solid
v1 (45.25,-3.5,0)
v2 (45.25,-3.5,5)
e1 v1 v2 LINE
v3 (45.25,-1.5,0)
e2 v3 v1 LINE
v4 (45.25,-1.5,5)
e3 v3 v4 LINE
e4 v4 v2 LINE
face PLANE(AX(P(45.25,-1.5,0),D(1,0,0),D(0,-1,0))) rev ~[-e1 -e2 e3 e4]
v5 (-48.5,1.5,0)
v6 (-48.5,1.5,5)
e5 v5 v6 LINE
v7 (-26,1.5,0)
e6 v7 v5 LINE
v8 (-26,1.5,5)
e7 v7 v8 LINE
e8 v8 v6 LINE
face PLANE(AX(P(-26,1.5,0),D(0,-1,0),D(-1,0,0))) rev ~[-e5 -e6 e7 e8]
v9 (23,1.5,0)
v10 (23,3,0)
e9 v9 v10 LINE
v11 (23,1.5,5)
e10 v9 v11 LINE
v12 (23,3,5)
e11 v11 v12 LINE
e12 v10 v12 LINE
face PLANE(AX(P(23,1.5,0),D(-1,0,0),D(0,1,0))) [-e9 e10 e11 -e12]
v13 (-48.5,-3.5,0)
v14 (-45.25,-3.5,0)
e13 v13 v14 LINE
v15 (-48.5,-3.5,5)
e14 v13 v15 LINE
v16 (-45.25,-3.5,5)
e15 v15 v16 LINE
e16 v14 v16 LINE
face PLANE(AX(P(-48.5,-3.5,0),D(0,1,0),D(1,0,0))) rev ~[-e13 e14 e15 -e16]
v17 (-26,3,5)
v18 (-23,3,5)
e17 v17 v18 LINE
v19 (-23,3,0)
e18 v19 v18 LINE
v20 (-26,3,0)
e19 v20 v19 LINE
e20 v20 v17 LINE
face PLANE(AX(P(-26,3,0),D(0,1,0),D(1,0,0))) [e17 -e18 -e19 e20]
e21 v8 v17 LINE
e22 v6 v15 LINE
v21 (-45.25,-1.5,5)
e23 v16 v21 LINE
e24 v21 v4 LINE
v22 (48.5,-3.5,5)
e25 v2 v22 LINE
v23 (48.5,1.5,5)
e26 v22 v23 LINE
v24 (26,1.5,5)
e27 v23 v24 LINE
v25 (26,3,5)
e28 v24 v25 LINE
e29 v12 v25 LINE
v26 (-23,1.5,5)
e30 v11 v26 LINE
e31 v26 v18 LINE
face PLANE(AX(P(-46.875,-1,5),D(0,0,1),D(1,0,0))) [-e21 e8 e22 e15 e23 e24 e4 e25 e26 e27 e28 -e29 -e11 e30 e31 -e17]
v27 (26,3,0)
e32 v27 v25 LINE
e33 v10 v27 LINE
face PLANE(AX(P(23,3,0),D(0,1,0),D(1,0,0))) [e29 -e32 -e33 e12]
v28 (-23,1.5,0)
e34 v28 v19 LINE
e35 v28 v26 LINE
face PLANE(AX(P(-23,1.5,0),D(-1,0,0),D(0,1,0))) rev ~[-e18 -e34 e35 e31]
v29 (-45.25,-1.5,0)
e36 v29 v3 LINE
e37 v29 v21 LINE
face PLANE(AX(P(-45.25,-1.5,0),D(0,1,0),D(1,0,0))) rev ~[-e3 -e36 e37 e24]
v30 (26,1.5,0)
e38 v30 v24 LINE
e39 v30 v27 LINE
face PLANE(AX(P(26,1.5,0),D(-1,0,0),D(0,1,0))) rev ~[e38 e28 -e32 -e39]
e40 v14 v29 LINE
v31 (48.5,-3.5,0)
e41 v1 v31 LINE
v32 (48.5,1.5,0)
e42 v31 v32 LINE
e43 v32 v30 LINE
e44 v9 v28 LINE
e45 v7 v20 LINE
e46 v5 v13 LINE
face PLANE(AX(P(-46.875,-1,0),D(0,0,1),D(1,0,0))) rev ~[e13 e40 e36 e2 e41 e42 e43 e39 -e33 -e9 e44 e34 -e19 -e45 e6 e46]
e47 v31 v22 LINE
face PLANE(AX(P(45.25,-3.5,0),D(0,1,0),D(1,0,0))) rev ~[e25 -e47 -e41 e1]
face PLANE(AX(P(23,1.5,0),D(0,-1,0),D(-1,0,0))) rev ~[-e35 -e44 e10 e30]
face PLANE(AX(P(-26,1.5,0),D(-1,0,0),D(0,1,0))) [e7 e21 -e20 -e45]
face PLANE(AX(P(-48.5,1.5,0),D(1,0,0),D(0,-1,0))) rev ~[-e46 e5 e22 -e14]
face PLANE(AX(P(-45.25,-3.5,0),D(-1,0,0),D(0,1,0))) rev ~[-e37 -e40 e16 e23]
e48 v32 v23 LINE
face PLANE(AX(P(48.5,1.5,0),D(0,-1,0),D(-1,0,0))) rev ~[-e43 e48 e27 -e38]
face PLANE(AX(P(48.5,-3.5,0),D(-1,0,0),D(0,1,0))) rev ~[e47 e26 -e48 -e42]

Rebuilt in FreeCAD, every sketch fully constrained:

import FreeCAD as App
import Part
import Sketcher

V = App.Vector

doc = App.newDocument("Part")
body = doc.addObject("PartDesign::Body", "Body")

# Sketch on XY plane
sketch1 = body.newObject("Sketcher::SketchObject", "Sketch")
sketch1.AttachmentSupport = (doc.getObject("XY_Plane"), [""])
sketch1.MapMode = "FlatFace"
sketch1.addGeometry([
    Part.LineSegment(V(-45.2, -3.5, 0), V(-45.2, -1.5, 0)),  # 0
    Part.LineSegment(V(-45.2, -1.5, 0), V(45.2, -1.5, 0)),  # 1
    Part.LineSegment(V(45.2, -1.5, 0), V(45.2, -3.5, 0)),  # 2
    Part.LineSegment(V(45.2, -3.5, 0), V(48.5, -3.5, 0)),  # 3
    Part.LineSegment(V(48.5, -3.5, 0), V(48.5, 1.5, 0)),  # 4
    Part.LineSegment(V(48.5, 1.5, 0), V(26, 1.5, 0)),  # 5
    Part.LineSegment(V(26, 1.5, 0), V(26, 3, 0)),  # 6
    Part.LineSegment(V(26, 3, 0), V(23, 3, 0)),  # 7
    Part.LineSegment(V(23, 3, 0), V(23, 1.5, 0)),  # 8
    Part.LineSegment(V(23, 1.5, 0), V(-23, 1.5, 0)),  # 9
    Part.LineSegment(V(-23, 1.5, 0), V(-23, 3, 0)),  # 10
    Part.LineSegment(V(-23, 3, 0), V(-26, 3, 0)),  # 11
    Part.LineSegment(V(-26, 3, 0), V(-26, 1.5, 0)),  # 12
    Part.LineSegment(V(-26, 1.5, 0), V(-48.5, 1.5, 0)),  # 13
    Part.LineSegment(V(-48.5, 1.5, 0), V(-48.5, -3.5, 0)),  # 14
    Part.LineSegment(V(-48.5, -3.5, 0), V(-45.2, -3.5, 0)),  # 15
], False)
sketch1.addConstraint([
    Sketcher.Constraint("Coincident", 0, 2, 1, 1),
    Sketcher.Constraint("Coincident", 1, 2, 2, 1),
    Sketcher.Constraint("Coincident", 2, 2, 3, 1),
    Sketcher.Constraint("Coincident", 3, 2, 4, 1),
    Sketcher.Constraint("Coincident", 4, 2, 5, 1),
    Sketcher.Constraint("Coincident", 5, 2, 6, 1),
    Sketcher.Constraint("Coincident", 6, 2, 7, 1),
    Sketcher.Constraint("Coincident", 7, 2, 8, 1),
    Sketcher.Constraint("Coincident", 8, 2, 9, 1),
    Sketcher.Constraint("Coincident", 9, 2, 10, 1),
    Sketcher.Constraint("Coincident", 10, 2, 11, 1),
    Sketcher.Constraint("Coincident", 11, 2, 12, 1),
    Sketcher.Constraint("Coincident", 12, 2, 13, 1),
    Sketcher.Constraint("Coincident", 13, 2, 14, 1),
    Sketcher.Constraint("Coincident", 14, 2, 15, 1),
    Sketcher.Constraint("Coincident", 15, 2, 0, 1),
    Sketcher.Constraint("Vertical", 0),
    Sketcher.Constraint("Horizontal", 1),
    Sketcher.Constraint("Vertical", 2),
    Sketcher.Constraint("Horizontal", 3),
    Sketcher.Constraint("Vertical", 4),
    Sketcher.Constraint("Horizontal", 5),
    Sketcher.Constraint("Vertical", 6),
    Sketcher.Constraint("Horizontal", 7),
    Sketcher.Constraint("Vertical", 8),
    Sketcher.Constraint("Horizontal", 9),
    Sketcher.Constraint("Vertical", 10),
    Sketcher.Constraint("Horizontal", 11),
    Sketcher.Constraint("Vertical", 12),
    Sketcher.Constraint("Horizontal", 13),
    Sketcher.Constraint("Vertical", 14),
    Sketcher.Constraint("Horizontal", 15),
    Sketcher.Constraint("Symmetric", 7, 2, 10, 2, -2),
    Sketcher.Constraint("Symmetric", 5, 2, 12, 2, -2),
    Sketcher.Constraint("Symmetric", 3, 2, 14, 2, -2),
    Sketcher.Constraint("Horizontal", 5, 2, 8, 2),
    Sketcher.Constraint("Equal", 3, 15),
    Sketcher.Constraint("DistanceX", 7, 2, 7, 1, 3.0),
    Sketcher.Constraint("DistanceX", 9, 2, 9, 1, 46.0),
    Sketcher.Constraint("DistanceY", 0, 1, 0, 2, 2.0),
    Sketcher.Constraint("DistanceY", 4, 1, 4, 2, 5.0),
    Sketcher.Constraint("DistanceX", 1, 1, 1, 2, 90.5),
    Sketcher.Constraint("DistanceX", 5, 2, 5, 1, 22.5),
    Sketcher.Constraint("DistanceY", 6, 1, 6, 2, 1.5),
    Sketcher.Constraint("DistanceY", -1, 1, 6, 2, 3.0),
])
pad1 = body.newObject("PartDesign::Pad", "Pad")
pad1.Profile = sketch1
pad1.Length = 5

doc.recompute()
